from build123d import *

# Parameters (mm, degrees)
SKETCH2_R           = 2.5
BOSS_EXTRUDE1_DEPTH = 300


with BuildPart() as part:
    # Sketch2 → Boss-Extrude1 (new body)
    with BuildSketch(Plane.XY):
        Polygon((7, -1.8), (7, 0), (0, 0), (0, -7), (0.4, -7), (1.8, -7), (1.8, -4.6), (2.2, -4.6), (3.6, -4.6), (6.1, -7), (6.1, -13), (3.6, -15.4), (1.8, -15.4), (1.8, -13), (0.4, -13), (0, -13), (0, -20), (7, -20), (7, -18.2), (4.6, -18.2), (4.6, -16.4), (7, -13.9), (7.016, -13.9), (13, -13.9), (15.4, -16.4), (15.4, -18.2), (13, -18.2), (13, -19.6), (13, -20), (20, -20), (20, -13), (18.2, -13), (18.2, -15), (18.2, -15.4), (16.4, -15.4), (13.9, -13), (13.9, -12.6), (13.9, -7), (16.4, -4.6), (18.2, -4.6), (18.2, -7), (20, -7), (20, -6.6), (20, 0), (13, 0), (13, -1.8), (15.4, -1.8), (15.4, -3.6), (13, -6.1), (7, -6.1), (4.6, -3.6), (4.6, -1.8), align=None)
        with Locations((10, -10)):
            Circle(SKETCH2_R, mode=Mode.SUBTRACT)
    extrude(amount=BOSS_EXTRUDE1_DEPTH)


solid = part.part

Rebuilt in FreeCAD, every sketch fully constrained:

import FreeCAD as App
import Part
import Sketcher


def add_polygon(sketch, points):
    """Adds a closed chain of lines whose ends are joined by coincident constraints."""
    first, n = sketch.GeometryCount, len(points)
    for a, b in zip(points, points[1:] + points[:1]):
        sketch.addGeometry(Part.LineSegment(App.Vector(*a, 0), App.Vector(*b, 0)), False)
    for i in range(n):
        sketch.addConstraint(Sketcher.Constraint("Coincident", first + i, 2, first + (i + 1) % n, 1))

doc = App.newDocument("Part")
body = doc.addObject("PartDesign::Body", "Body")

# Sketch on XY plane
sketch1 = doc.addObject("Sketcher::SketchObject", "Sketch")
body.addObject(sketch1)
sketch1.AttachmentSupport = (doc.XY_Plane, [""])
sketch1.MapMode = "FlatFace"
add_polygon(sketch1, [(7, -1.8), (7, 0), (0, 0), (0, -7), (1.8, -7), (1.8, -4.6), (3.6, -4.6), (6.1, -7), (6.1, -13), (3.6, -15.4), (1.8, -15.4), (1.8, -13), (0, -13), (0, -20), (7, -20), (7, -18.2), (4.6, -18.2), (4.6, -16.4), (7, -13.9), (13, -13.9), (15.4, -16.4), (15.4, -18.2), (13, -18.2), (13, -20), (20, -20), (20, -13), (18.2, -13), (18.2, -15.4), (16.4, -15.4), (13.9, -13), (13.9, -7), (16.4, -4.6), (18.2, -4.6), (18.2, -7), (20, -7), (20, 0), (13, 0), (13, -1.8), (15.4, -1.8), (15.4, -3.6), (13, -6.1), (7, -6.1), (4.6, -3.6), (4.6, -1.8)])  # lines 0-43
sketch1.addGeometry(Part.Circle(App.Vector(10, -10, 0), App.Vector(0, 0, 1), 2.5), False)  # 44
sketch1.addConstraint([
    Sketcher.Constraint("Vertical", 0),
    Sketcher.Constraint("Horizontal", 1),
    Sketcher.Constraint("Vertical", 2),
    Sketcher.Constraint("Horizontal", 3),
    Sketcher.Constraint("Vertical", 4),
    Sketcher.Constraint("Horizontal", 5),
    Sketcher.Constraint("Vertical", 7),
    Sketcher.Constraint("Horizontal", 9),
    Sketcher.Constraint("Vertical", 10),
    Sketcher.Constraint("Horizontal", 11),
    Sketcher.Constraint("Vertical", 12),
    Sketcher.Constraint("Horizontal", 13),
    Sketcher.Constraint("Vertical", 14),
    Sketcher.Constraint("Horizontal", 15),
    Sketcher.Constraint("Vertical", 16),
    Sketcher.Constraint("Horizontal", 18),
    Sketcher.Constraint("Vertical", 20),
    Sketcher.Constraint("Horizontal", 21),
    Sketcher.Constraint("Vertical", 22),
    Sketcher.Constraint("Horizontal", 23),
    Sketcher.Constraint("Vertical", 24),
    Sketcher.Constraint("Horizontal", 25),
    Sketcher.Constraint("Vertical", 26),
    Sketcher.Constraint("Horizontal", 27),
    Sketcher.Constraint("Vertical", 29),
    Sketcher.Constraint("Horizontal", 31),
    Sketcher.Constraint("Vertical", 32),
    Sketcher.Constraint("Horizontal", 33),
    Sketcher.Constraint("Vertical", 34),
    Sketcher.Constraint("Horizontal", 35),
    Sketcher.Constraint("Vertical", 36),
    Sketcher.Constraint("Horizontal", 37),
    Sketcher.Constraint("Vertical", 38),
    Sketcher.Constraint("Horizontal", 40),
    Sketcher.Constraint("Vertical", 42),
    Sketcher.Constraint("Horizontal", 43),
    Sketcher.Constraint("Coincident", 1, 2, -1, 1),
    Sketcher.Constraint("PointOnObject", 11, 2, -2),
    Sketcher.Constraint("PointOnObject", 34, 2, -1),
    Sketcher.Constraint("Perpendicular", 6, 17),
    Sketcher.Constraint("Perpendicular", 8, 19),
    Sketcher.Constraint("Perpendicular", 17, 28),
    Sketcher.Constraint("Perpendicular", 19, 30),
    Sketcher.Constraint("Perpendicular", 28, 39),
    Sketcher.Constraint("Perpendicular", 30, 41),
    Sketcher.Constraint("Horizontal", 3, 2, 6, 2),
    Sketcher.Constraint("Horizontal", 7, 2, 10, 2),
    Sketcher.Constraint("Horizontal", 16, 2, 19, 2),
    Sketcher.Constraint("Horizontal", 15, 2, 20, 2),
    Sketcher.Constraint("Horizontal", 13, 2, 22, 2),
    Sketcher.Constraint("Horizontal", 11, 2, 24, 2),
    Sketcher.Constraint("Horizontal", 9, 2, 26, 2),
    Sketcher.Constraint("Horizontal", 25, 2, 28, 2),
    Sketcher.Constraint("Horizontal", 6, 2, 29, 2),
    Sketcher.Constraint("Horizontal", 5, 2, 30, 2),
    Sketcher.Constraint("Horizontal", 29, 2, 32, 2),
    Sketcher.Constraint("Horizontal", 38, 2, 41, 2),
    Sketcher.Constraint("Horizontal", 37, 2, 42, 2),
    Sketcher.Constraint("Vertical", 5, 2, 8, 2),
    Sketcher.Constraint("Vertical", 4, 2, 9, 2),
    Sketcher.Constraint("Vertical", 0, 2, 13, 2),
    Sketcher.Constraint("Vertical", 14, 2, 17, 2),
    Sketcher.Constraint("Vertical", 18, 2, 21, 2),
    Sketcher.Constraint("Vertical", 27, 2, 30, 2),
    Sketcher.Constraint("Vertical", 26, 2, 31, 2),
    Sketcher.Constraint("Vertical", 24, 2, 33, 2),
    Sketcher.Constraint("Vertical", 22, 2, 35, 2),
    Sketcher.Constraint("Vertical", 20, 2, 37, 2),
    Sketcher.Constraint("Vertical", 36, 2, 39, 2),
    Sketcher.Constraint("Vertical", 17, 2, 40, 2),
    Sketcher.Constraint("Equal", 3, 5),
    Sketcher.Constraint("Equal", 13, 23),
    Sketcher.Constraint("Equal", 11, 25),
    Sketcher.Constraint("Equal", 25, 27),
    Sketcher.Constraint("Equal", 33, 0),
    Sketcher.Constraint("Equal", 35, 2),
    Sketcher.Constraint("Equal", 43, 4),
    Sketcher.Constraint("Equal", 40, 7),
    Sketcher.Constraint("Equal", 2, 12),
    Sketcher.Constraint("Equal", 0, 14),
    Sketcher.Constraint("Equal", 14, 16),
    Sketcher.Constraint("Equal", 36, 38),
    Sketcher.Constraint("Diameter", 44, 5.0),
    Sketcher.Constraint("DistanceX", 1, 2, 1, 1, 7.0),
    Sketcher.Constraint("DistanceX", 18, 1, 18, 2, 6.0),
    Sketcher.Constraint("DistanceX", 3, 1, 3, 2, 1.8),
    Sketcher.Constraint("DistanceX", 15, 2, 15, 1, 2.4),
    Sketcher.Constraint("DistanceX", -1, 1, 44, 3, 10.0),
    Sketcher.Constraint("DistanceY", 44, 3, -1, 1, 10.0),
    Sketcher.Constraint("DistanceX", -1, 1, 6, 2, 6.1),
])
pad1 = doc.addObject("PartDesign::Pad", "Pad")
body.addObject(pad1)
pad1.Profile = sketch1
pad1.Length = 300

doc.recompute()
